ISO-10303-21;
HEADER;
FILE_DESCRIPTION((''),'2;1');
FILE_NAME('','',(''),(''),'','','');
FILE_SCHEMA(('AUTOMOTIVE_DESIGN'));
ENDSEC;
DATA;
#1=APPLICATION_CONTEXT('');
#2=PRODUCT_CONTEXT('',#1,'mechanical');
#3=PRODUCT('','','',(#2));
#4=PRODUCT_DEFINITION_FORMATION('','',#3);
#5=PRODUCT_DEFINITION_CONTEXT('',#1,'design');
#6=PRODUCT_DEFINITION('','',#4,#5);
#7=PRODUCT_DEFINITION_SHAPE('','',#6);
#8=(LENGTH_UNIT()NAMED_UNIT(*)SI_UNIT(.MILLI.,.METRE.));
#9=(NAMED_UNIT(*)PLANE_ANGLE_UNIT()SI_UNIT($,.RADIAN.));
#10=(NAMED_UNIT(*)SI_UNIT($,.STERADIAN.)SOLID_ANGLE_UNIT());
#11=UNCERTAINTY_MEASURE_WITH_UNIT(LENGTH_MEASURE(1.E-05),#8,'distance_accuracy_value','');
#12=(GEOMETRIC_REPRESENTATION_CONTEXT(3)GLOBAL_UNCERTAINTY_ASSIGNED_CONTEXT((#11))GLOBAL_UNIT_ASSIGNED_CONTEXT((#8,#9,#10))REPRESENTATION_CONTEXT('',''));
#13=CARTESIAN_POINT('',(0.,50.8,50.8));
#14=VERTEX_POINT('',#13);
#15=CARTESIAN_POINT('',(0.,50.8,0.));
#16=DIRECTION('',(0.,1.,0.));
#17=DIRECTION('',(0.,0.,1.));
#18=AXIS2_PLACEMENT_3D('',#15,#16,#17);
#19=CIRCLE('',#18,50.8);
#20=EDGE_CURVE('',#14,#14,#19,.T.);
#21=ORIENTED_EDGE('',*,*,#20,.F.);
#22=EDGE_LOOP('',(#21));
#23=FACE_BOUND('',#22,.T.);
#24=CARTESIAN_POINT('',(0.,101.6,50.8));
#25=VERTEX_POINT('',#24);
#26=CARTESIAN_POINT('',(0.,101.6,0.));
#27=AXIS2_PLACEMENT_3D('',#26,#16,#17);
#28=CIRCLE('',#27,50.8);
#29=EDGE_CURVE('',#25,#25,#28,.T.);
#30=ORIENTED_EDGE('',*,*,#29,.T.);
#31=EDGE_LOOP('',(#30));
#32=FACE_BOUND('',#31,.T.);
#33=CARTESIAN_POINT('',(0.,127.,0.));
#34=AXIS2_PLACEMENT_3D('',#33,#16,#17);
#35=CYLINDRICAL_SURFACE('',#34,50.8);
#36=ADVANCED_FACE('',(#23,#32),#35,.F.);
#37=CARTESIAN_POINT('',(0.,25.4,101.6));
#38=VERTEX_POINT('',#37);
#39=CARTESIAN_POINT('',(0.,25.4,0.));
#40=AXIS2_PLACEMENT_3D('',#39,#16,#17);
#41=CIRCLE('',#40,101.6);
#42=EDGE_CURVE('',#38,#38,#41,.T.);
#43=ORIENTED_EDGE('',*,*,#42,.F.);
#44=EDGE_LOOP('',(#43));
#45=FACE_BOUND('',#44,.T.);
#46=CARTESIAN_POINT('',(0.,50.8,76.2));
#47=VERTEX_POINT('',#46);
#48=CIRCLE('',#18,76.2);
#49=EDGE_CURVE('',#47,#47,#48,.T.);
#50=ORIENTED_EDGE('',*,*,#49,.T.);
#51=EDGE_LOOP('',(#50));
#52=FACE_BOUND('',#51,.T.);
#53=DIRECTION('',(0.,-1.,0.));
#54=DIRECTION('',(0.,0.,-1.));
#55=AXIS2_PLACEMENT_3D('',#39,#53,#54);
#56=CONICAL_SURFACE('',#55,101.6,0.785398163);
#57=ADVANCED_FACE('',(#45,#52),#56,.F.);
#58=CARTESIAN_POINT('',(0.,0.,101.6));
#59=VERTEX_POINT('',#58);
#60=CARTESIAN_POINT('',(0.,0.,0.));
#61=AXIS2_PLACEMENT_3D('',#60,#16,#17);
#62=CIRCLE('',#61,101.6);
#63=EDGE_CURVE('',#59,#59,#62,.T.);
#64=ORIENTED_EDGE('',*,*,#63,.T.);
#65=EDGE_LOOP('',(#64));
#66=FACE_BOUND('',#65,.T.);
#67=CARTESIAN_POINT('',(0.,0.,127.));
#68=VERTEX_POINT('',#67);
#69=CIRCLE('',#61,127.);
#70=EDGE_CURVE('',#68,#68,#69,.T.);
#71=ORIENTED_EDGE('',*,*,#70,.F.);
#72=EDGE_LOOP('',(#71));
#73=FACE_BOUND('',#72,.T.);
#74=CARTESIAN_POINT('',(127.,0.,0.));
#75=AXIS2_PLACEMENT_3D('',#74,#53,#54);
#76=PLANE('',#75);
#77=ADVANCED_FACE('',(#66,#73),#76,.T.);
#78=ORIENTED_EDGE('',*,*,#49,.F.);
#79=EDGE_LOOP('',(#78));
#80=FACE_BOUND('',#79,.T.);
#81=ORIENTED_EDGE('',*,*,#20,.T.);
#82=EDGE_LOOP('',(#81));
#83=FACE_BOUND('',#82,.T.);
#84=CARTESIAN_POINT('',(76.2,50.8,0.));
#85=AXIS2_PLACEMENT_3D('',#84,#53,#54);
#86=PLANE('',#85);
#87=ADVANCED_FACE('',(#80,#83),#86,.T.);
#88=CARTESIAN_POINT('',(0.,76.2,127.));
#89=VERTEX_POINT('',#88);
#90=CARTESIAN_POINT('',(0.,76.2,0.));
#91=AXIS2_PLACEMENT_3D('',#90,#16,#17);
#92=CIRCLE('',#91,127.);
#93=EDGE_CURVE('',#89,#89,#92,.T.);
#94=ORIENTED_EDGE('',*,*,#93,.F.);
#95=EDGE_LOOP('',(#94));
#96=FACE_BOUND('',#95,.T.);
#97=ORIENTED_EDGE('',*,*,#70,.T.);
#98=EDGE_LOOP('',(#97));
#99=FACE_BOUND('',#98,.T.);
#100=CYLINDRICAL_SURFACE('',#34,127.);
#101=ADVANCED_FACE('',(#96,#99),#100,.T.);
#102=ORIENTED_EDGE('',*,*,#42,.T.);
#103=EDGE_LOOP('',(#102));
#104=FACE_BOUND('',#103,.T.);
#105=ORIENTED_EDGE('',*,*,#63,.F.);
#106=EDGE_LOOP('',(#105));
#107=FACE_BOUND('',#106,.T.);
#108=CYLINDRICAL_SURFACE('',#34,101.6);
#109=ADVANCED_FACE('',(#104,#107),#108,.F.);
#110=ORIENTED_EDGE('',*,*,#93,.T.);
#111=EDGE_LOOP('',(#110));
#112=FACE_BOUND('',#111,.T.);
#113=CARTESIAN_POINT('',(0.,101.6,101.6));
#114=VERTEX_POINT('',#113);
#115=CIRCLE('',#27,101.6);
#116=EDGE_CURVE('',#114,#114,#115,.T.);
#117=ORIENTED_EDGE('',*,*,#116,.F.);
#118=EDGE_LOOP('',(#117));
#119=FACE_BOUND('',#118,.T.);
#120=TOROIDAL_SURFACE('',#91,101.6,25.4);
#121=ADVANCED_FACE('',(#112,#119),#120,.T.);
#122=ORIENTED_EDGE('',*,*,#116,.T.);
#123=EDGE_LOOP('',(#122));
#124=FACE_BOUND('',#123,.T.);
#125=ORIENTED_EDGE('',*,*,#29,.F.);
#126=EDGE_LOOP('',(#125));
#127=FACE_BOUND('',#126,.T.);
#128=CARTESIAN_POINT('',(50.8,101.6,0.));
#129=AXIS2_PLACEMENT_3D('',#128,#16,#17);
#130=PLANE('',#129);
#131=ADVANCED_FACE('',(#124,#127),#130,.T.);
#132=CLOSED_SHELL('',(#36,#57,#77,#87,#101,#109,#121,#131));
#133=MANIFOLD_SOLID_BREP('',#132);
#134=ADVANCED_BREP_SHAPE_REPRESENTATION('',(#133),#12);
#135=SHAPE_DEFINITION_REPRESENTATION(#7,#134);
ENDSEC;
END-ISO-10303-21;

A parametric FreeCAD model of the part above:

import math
import FreeCAD as App
import Part
import Sketcher
from FreeCAD import Vector
Q = App.Units.Quantity

doc = App.newDocument("Part")
body = doc.addObject("PartDesign::Body", "Body")

sketch1 = doc.addObject("Sketcher::SketchObject", "Sketch")
body.addObject(sketch1)
sketch1.AttachmentSupport = (doc.XY_Plane, [""])
sketch1.MapMode = "FlatFace"
sketch1.addGeometry([
    Part.LineSegment(Vector(51, 102, 0), Vector(51, 51, 0)),
    Part.LineSegment(Vector(51, 51, 0), Vector(76, 51, 0)),
    Part.LineSegment(Vector(76, 51, 0), Vector(102, 25, 0)),
    Part.LineSegment(Vector(102, 25, 0), Vector(102, 0, 0)),
    Part.LineSegment(Vector(102, 0, 0), Vector(127, 0, 0)),
    Part.LineSegment(Vector(127, 0, 0), Vector(127, 76, 0)),
    Part.ArcOfCircle(Part.Circle(Vector(102, 76, 0), Vector(0, 0, 1), 25), math.radians(0), math.radians(90)),
    Part.LineSegment(Vector(102, 102, 0), Vector(51, 102, 0)),
], False)
sketch1.addConstraint([
    Sketcher.Constraint("Coincident", 0, 2, 1, 1),
    Sketcher.Constraint("Coincident", 1, 2, 2, 1),
    Sketcher.Constraint("Coincident", 2, 2, 3, 1),
    Sketcher.Constraint("Coincident", 3, 2, 4, 1),
    Sketcher.Constraint("Coincident", 4, 2, 5, 1),
    Sketcher.Constraint("Tangent", 5, 2, 6, 1),
    Sketcher.Constraint("Tangent", 6, 2, 7, 1),
    Sketcher.Constraint("Coincident", 7, 2, 0, 1),
    Sketcher.Constraint("Vertical", 0),
    Sketcher.Constraint("Horizontal", 1),
    Sketcher.Constraint("Vertical", 3),
    Sketcher.Constraint("Horizontal", 4),
    Sketcher.Constraint("Vertical", 5),
    Sketcher.Constraint("Horizontal", 7),
    Sketcher.Constraint("PointOnObject", 3, 2, -1),
    Sketcher.Constraint("Vertical", 6, 3, 2, 2),
    Sketcher.Constraint("Equal", 1, 4),
    Sketcher.Constraint("Equal", 7, 0),
    Sketcher.Constraint("Equal", 4, 3),
    Sketcher.Constraint("Radius", 6, Q("1 in")),
    Sketcher.Constraint("DistanceX", 7, 2, 7, 1, Q("2 in")),
    Sketcher.Constraint("DistanceY", 5, 1, 5, 2, Q("3 in")),
    Sketcher.Constraint("DistanceX", -1, 1, 6, 3, Q("4 in")),
])
revolution = doc.addObject("PartDesign::Revolution", "Revolution")
body.addObject(revolution)
revolution.Profile = sketch1
revolution.ReferenceAxis = (sketch1, ["V_Axis"])
revolution.Angle = 360

doc.recompute()
